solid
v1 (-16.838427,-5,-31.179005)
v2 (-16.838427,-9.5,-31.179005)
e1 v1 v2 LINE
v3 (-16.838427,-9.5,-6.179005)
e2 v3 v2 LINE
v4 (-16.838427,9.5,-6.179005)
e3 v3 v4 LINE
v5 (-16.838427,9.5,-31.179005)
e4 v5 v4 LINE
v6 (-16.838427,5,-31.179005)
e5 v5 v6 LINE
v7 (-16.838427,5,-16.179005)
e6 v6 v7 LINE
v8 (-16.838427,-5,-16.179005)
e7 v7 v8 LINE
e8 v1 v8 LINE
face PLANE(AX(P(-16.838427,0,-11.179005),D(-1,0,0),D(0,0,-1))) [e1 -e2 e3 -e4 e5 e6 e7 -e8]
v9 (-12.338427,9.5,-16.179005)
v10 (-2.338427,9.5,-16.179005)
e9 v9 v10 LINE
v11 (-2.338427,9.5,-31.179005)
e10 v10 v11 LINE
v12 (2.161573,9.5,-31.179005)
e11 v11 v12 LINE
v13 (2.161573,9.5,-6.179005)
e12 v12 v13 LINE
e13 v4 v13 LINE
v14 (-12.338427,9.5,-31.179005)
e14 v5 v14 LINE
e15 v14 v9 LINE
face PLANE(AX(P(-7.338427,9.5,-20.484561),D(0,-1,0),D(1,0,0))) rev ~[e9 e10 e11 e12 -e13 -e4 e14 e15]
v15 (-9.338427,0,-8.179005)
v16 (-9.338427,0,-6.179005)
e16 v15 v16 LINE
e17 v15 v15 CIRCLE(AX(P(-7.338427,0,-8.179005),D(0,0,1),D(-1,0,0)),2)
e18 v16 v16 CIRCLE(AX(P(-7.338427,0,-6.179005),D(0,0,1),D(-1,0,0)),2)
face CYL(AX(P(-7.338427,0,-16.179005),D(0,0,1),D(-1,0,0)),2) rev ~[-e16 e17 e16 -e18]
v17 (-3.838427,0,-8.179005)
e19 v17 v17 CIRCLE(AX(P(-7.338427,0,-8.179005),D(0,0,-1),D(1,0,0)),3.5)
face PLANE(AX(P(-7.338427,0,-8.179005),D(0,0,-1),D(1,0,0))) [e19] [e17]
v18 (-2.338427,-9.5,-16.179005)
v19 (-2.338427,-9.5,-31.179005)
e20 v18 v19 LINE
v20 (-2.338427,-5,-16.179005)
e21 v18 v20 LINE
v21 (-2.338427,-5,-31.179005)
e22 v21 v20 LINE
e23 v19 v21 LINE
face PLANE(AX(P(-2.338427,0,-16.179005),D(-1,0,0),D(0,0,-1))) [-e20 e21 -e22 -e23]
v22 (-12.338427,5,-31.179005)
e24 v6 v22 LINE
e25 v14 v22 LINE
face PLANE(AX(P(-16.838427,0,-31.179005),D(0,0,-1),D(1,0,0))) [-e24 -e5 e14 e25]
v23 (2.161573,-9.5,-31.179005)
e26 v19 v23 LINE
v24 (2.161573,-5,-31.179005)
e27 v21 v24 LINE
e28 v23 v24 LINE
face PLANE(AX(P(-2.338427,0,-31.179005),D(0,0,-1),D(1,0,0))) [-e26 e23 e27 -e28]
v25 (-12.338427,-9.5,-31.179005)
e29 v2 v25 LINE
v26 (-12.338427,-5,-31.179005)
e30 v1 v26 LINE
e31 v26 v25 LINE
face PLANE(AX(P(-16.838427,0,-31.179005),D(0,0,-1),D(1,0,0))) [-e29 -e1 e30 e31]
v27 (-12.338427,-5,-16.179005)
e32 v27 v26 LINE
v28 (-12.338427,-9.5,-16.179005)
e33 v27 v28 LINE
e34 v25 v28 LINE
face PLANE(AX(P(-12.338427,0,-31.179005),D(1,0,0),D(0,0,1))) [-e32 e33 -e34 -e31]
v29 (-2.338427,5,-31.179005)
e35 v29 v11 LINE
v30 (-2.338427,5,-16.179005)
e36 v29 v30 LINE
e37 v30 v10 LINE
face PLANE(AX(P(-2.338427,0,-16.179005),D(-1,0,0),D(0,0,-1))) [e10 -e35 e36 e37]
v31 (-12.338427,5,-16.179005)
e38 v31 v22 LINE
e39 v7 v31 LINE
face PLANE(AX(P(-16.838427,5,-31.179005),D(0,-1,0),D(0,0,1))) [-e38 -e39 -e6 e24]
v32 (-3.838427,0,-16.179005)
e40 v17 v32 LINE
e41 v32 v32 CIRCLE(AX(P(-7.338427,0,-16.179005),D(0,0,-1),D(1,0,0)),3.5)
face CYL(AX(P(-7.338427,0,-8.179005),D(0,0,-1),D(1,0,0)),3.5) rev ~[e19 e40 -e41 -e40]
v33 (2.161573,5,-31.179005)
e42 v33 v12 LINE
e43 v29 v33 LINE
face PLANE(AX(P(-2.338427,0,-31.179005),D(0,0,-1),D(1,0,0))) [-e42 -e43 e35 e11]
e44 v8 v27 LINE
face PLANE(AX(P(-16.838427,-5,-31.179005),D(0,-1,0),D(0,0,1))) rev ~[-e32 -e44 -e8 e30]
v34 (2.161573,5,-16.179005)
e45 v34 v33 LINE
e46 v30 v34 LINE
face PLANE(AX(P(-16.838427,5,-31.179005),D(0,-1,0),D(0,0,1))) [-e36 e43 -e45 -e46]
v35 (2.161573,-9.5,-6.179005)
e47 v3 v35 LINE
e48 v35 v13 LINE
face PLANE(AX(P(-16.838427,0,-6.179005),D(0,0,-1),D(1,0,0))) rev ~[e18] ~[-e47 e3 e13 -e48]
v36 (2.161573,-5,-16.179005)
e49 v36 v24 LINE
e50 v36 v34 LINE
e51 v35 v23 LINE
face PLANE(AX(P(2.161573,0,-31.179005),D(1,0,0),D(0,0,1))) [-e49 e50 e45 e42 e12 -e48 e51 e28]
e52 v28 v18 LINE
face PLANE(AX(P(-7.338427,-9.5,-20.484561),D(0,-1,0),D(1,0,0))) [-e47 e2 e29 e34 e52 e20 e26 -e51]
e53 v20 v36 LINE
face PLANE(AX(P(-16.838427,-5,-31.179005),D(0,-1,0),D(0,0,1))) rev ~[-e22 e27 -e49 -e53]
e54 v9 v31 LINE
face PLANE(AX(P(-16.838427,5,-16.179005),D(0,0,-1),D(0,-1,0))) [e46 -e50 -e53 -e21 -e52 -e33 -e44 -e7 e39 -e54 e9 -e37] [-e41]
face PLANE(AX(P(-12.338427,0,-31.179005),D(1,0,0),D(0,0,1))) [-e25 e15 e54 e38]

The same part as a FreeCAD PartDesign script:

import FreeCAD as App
import Part
import Sketcher

V = App.Vector
Q = App.Units.Quantity

doc = App.newDocument("Part")
params = doc.addObject("Spreadsheet::Sheet", "Params")
for row, (alias, value) in enumerate([
    ("sketch1_width", "19 mm"),
    ("sketch1_height", "5 mm"),
    ("pad1_length", "19 mm"),
    ("sketch2_width", "19 mm"),
    ("sketch2_width2", "10 mm"),
    ("sketch2_height", "20 mm"),
    ("sketch2_height2", "15 mm"),
    ("pad2_length", "19 mm"),
    ("sketch3_width", "10 mm"),
    ("sketch3_height", "15 mm"),
    ("pocket1_length", "25 mm"),
    ("sketch4_diameter", "4 mm"),
    ("hole_diameter", "4 mm"),
    ("hole_cbore_diameter", "7 mm"),
    ("hole_cbore_depth", "8 mm"),
], start=1):
    params.set(f"A{row}", alias)
    params.set(f"B{row}", "=" + value)
    params.setAlias(f"B{row}", alias)

body = doc.addObject("PartDesign::Body", "Body")

# Sketch on XZ plane
sketch1 = body.newObject("Sketcher::SketchObject", "Sketch")
sketch1.AttachmentSupport = (doc.getObject("XZ_Plane"), [""])
sketch1.MapMode = "FlatFace"
sketch1.addGeometry(Part.LineSegment(V(-16.838427, -6.179005, 0), V(-16.838427, -11.179005, 0)), False)
sketch1.addGeometry(Part.LineSegment(V(-16.838427, -11.179005, 0), V(2.161573, -11.179005, 0)), False)
sketch1.addGeometry(Part.LineSegment(V(2.161573, -11.179005, 0), V(2.161573, -6.179005, 0)), False)
sketch1.addGeometry(Part.LineSegment(V(2.161573, -6.179005, 0), V(-16.838427, -6.179005, 0)), False)
sketch1.addConstraint(Sketcher.Constraint("Coincident", 0, 2, 1, 1))
sketch1.addConstraint(Sketcher.Constraint("Coincident", 1, 2, 2, 1))
sketch1.addConstraint(Sketcher.Constraint("Coincident", 2, 2, 3, 1))
sketch1.addConstraint(Sketcher.Constraint("Coincident", 3, 2, 0, 1))
sketch1.addConstraint(Sketcher.Constraint("Vertical", 0))
sketch1.addConstraint(Sketcher.Constraint("Horizontal", 1))
sketch1.addConstraint(Sketcher.Constraint("Vertical", 2))
sketch1.addConstraint(Sketcher.Constraint("Horizontal", 3))
sketch1.addConstraint(Sketcher.Constraint("DistanceX", 1, 1, 1, 2, Q("19 mm")))
sketch1.addConstraint(Sketcher.Constraint("DistanceY", 0, 2, 0, 1, Q("5 mm")))
sketch1.addConstraint(Sketcher.Constraint("DistanceX", 0, 2, -1, 1, Q("16.838427 mm")))
sketch1.addConstraint(Sketcher.Constraint("DistanceY", 0, 2, -1, 1, Q("11.179005 mm")))
sketch1.setExpression("Constraints[8]", "Params.sketch1_width")
sketch1.setExpression("Constraints[9]", "Params.sketch1_height")
pad1 = body.newObject("PartDesign::Pad", "Pad")
pad1.Profile = sketch1
pad1.setExpression("Length", "Params.pad1_length")
pad1.Midplane = True

# Sketch on XZ plane
sketch2 = body.newObject("Sketcher::SketchObject", "Sketch001")
sketch2.AttachmentSupport = (doc.getObject("XZ_Plane"), [""])
sketch2.MapMode = "FlatFace"
sketch2.addGeometry(Part.LineSegment(V(2.161573, -31.179005, 0), V(2.161573, -11.179005, 0)), False)
sketch2.addGeometry(Part.LineSegment(V(2.161573, -11.179005, 0), V(-16.838427, -11.179005, 0)), False)
sketch2.addGeometry(Part.LineSegment(V(-16.838427, -11.179005, 0), V(-16.838427, -31.179005, 0)), False)
sketch2.addGeometry(Part.LineSegment(V(-16.838427, -31.179005, 0), V(-12.338427, -31.179005, 0)), False)
sketch2.addGeometry(Part.LineSegment(V(-12.338427, -31.179005, 0), V(-12.338427, -16.179005, 0)), False)
sketch2.addGeometry(Part.LineSegment(V(-12.338427, -16.179005, 0), V(-2.338427, -16.179005, 0)), False)
sketch2.addGeometry(Part.LineSegment(V(-2.338427, -16.179005, 0), V(-2.338427, -31.179005, 0)), False)
sketch2.addGeometry(Part.LineSegment(V(-2.338427, -31.179005, 0), V(2.161573, -31.179005, 0)), False)
sketch2.addConstraint(Sketcher.Constraint("Coincident", 0, 2, 1, 1))
sketch2.addConstraint(Sketcher.Constraint("Coincident", 1, 2, 2, 1))
sketch2.addConstraint(Sketcher.Constraint("Coincident", 2, 2, 3, 1))
sketch2.addConstraint(Sketcher.Constraint("Coincident", 3, 2, 4, 1))
sketch2.addConstraint(Sketcher.Constraint("Coincident", 4, 2, 5, 1))
sketch2.addConstraint(Sketcher.Constraint("Coincident", 5, 2, 6, 1))
sketch2.addConstraint(Sketcher.Constraint("Coincident", 6, 2, 7, 1))
sketch2.addConstraint(Sketcher.Constraint("Coincident", 7, 2, 0, 1))
sketch2.addConstraint(Sketcher.Constraint("Vertical", 0))
sketch2.addConstraint(Sketcher.Constraint("Horizontal", 1))
sketch2.addConstraint(Sketcher.Constraint("Vertical", 2))
sketch2.addConstraint(Sketcher.Constraint("Horizontal", 3))
sketch2.addConstraint(Sketcher.Constraint("Vertical", 4))
sketch2.addConstraint(Sketcher.Constraint("Horizontal", 5))
sketch2.addConstraint(Sketcher.Constraint("Vertical", 6))
sketch2.addConstraint(Sketcher.Constraint("Horizontal", 7))
sketch2.addConstraint(Sketcher.Constraint("Horizontal", 3, 2, 6, 2))
sketch2.addConstraint(Sketcher.Constraint("Equal", 3, 7))
sketch2.addConstraint(Sketcher.Constraint("DistanceX", 1, 2, 1, 1, Q("19 mm")))
sketch2.addConstraint(Sketcher.Constraint("DistanceX", 5, 1, 5, 2, Q("10 mm")))
sketch2.addConstraint(Sketcher.Constraint("DistanceY", 0, 1, 0, 2, Q("20 mm")))
sketch2.addConstraint(Sketcher.Constraint("DistanceY", 4, 1, 4, 2, Q("15 mm")))
sketch2.addConstraint(Sketcher.Constraint("DistanceX", -1, 1, 0, 2, Q("2.161573 mm")))
sketch2.addConstraint(Sketcher.Constraint("DistanceY", 0, 2, -1, 1, Q("11.179005 mm")))
sketch2.setExpression("Constraints[18]", "Params.sketch2_width")
sketch2.setExpression("Constraints[19]", "Params.sketch2_width2")
sketch2.setExpression("Constraints[20]", "Params.sketch2_height")
sketch2.setExpression("Constraints[21]", "Params.sketch2_height2")
pad2 = body.newObject("PartDesign::Pad", "Pad001")
pad2.Profile = sketch2
pad2.setExpression("Length", "Params.pad2_length")
pad2.Midplane = True

# Sketch on YZ plane
sketch3 = body.newObject("Sketcher::SketchObject", "Sketch002")
sketch3.AttachmentSupport = (doc.getObject("YZ_Plane"), [""])
sketch3.MapMode = "FlatFace"
sketch3.AttachmentOffset = App.Placement(V(0, 0, -16.838427), App.Rotation())
sketch3.addGeometry(Part.LineSegment(V(5, -16.179005, 0), V(5, -31.179005, 0)), False)
sketch3.addGeometry(Part.LineSegment(V(5, -31.179005, 0), V(-5, -31.179005, 0)), False)
sketch3.addGeometry(Part.LineSegment(V(-5, -31.179005, 0), V(-5, -16.179005, 0)), False)
sketch3.addGeometry(Part.LineSegment(V(-5, -16.179005, 0), V(5, -16.179005, 0)), False)
sketch3.addConstraint(Sketcher.Constraint("Coincident", 0, 2, 1, 1))
sketch3.addConstraint(Sketcher.Constraint("Coincident", 1, 2, 2, 1))
sketch3.addConstraint(Sketcher.Constraint("Coincident", 2, 2, 3, 1))
sketch3.addConstraint(Sketcher.Constraint("Coincident", 3, 2, 0, 1))
sketch3.addConstraint(Sketcher.Constraint("Vertical", 0))
sketch3.addConstraint(Sketcher.Constraint("Horizontal", 1))
sketch3.addConstraint(Sketcher.Constraint("Vertical", 2))
sketch3.addConstraint(Sketcher.Constraint("Horizontal", 3))
sketch3.addConstraint(Sketcher.Constraint("DistanceX", 1, 2, 1, 1, Q("10 mm")))
sketch3.addConstraint(Sketcher.Constraint("DistanceY", 0, 2, 0, 1, Q("15 mm")))
sketch3.addConstraint(Sketcher.Constraint("DistanceX", -1, 1, 0, 2, Q("5 mm")))
sketch3.addConstraint(Sketcher.Constraint("DistanceY", 0, 2, -1, 1, Q("31.179005 mm")))
sketch3.setExpression("Constraints[8]", "Params.sketch3_width")
sketch3.setExpression("Constraints[9]", "Params.sketch3_height")
pocket1 = body.newObject("PartDesign::Pocket", "Pocket")
pocket1.Profile = sketch3
pocket1.setExpression("Length", "Params.pocket1_length")
pocket1.Reversed = True

# Sketch on XY plane
sketch4 = body.newObject("Sketcher::SketchObject", "Sketch003")
sketch4.AttachmentSupport = (doc.getObject("XY_Plane"), [""])
sketch4.MapMode = "FlatFace"
sketch4.AttachmentOffset = App.Placement(V(0, 0, -16.179005), App.Rotation())
sketch4.addGeometry(Part.Circle(V(-7.338427, 0, 0), V(0, 0, 1), 2), False)
sketch4.addConstraint(Sketcher.Constraint("PointOnObject", 0, 3, -1))
sketch4.addConstraint(Sketcher.Constraint("Diameter", 0, Q("4 mm")))
sketch4.addConstraint(Sketcher.Constraint("DistanceX", 0, 3, -1, 1, Q("7.338427 mm")))
sketch4.setExpression("Constraints[1]", "Params.sketch4_diameter")
doc.recompute()
hole = body.newObject("PartDesign::Hole", "Hole")
hole.Profile = sketch4
hole.ThreadType = "None"
hole.setExpression("Diameter", "Params.hole_diameter")
hole.DepthType = "ThroughAll"
hole.HoleCutType = "Counterbore"
hole.setExpression("HoleCutDiameter", "Params.hole_cbore_diameter")
hole.setExpression("HoleCutDepth", "Params.hole_cbore_depth")
hole.Reversed = True

doc.recompute()
